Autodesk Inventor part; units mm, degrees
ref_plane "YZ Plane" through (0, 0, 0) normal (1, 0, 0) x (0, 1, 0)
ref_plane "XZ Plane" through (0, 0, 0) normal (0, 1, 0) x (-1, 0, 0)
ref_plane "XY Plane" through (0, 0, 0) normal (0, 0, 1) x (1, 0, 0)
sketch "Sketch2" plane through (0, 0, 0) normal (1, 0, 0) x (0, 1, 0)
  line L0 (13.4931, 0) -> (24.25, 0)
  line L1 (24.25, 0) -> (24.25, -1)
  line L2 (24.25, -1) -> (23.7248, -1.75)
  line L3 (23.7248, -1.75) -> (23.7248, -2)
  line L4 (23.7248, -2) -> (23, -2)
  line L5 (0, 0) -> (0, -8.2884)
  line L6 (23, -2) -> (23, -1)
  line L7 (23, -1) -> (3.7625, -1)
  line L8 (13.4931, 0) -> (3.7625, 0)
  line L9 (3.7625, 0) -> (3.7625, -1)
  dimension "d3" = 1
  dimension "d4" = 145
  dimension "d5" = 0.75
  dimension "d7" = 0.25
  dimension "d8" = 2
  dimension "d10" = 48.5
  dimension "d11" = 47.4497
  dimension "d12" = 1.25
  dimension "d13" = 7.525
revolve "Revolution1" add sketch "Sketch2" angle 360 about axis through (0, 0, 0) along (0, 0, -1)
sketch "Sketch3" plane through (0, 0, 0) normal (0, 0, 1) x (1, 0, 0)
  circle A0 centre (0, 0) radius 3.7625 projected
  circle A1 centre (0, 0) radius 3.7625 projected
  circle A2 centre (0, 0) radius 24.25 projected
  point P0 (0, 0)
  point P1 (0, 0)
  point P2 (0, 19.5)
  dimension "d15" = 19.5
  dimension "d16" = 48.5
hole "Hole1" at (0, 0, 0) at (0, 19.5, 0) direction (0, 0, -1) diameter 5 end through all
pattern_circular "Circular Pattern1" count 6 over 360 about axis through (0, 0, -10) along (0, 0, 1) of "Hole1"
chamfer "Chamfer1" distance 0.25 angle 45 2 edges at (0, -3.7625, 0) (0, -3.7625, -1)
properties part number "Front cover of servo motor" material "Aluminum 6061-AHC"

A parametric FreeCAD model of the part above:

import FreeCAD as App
import Part
import Sketcher

V = App.Vector


def edges_at(feature, points):
    """Names of the edges that pass closest to the given points."""
    edges = feature.Shape.Edges
    near = lambda p: min(range(len(edges)), key=lambda i: edges[i].distToShape(Part.Vertex(*p))[0])
    return sorted({f"Edge{near(p) + 1}" for p in points})


def add_polygon(sketch, points):
    """Adds a closed chain of lines whose ends are joined by coincident constraints."""
    first, n = sketch.GeometryCount, len(points)
    for a, b in zip(points, points[1:] + points[:1]):
        sketch.addGeometry(Part.LineSegment(App.Vector(*a, 0), App.Vector(*b, 0)), False)
    for i in range(n):
        sketch.addConstraint(Sketcher.Constraint("Coincident", first + i, 2, first + (i + 1) % n, 1))

doc = App.newDocument("Part")
params = doc.addObject("Spreadsheet::Sheet", "Params")
for row, (alias, value) in enumerate([
    ("sketch1_height", "1 mm"),
    ("sketch1_height2", "0.25 mm"),
    ("revolution_angle", "360 deg"),
    ("sketch2_diameter", "5 mm"),
    ("hole_diameter", "5 mm"),
    ("chamfer_size", "0.25 mm"),
], start=1):
    params.set(f"A{row}", alias)
    params.set(f"B{row}", "=" + value)
    params.setAlias(f"B{row}", alias)

body = doc.addObject("PartDesign::Body", "Body")

# Sketch on YZ plane
sketch1 = body.newObject("Sketcher::SketchObject", "Sketch")
sketch1.AttachmentSupport = (doc.getObject("YZ_Plane"), [""])
sketch1.MapMode = "FlatFace"
add_polygon(sketch1, [(24.25, 0), (3.7625, 0), (3.7625, -1), (23, -1), (23, -2), (23.7248, -2), (23.7248, -1.75), (24.25, -1)])  # lines 0-7
sketch1.addConstraint(Sketcher.Constraint("Horizontal", 0))
sketch1.addConstraint(Sketcher.Constraint("Vertical", 1))
sketch1.addConstraint(Sketcher.Constraint("Horizontal", 2))
sketch1.addConstraint(Sketcher.Constraint("Vertical", 3))
sketch1.addConstraint(Sketcher.Constraint("Horizontal", 4))
sketch1.addConstraint(Sketcher.Constraint("Vertical", 5))
sketch1.addConstraint(Sketcher.Constraint("Vertical", 7))
sketch1.addConstraint(Sketcher.Constraint("PointOnObject", 0, 2, -1))
sketch1.addConstraint(Sketcher.Constraint("Horizontal", 2, 2, 6, 2))
sketch1.addConstraint(Sketcher.Constraint("Equal", 1, 3))
sketch1.addConstraint(Sketcher.Constraint("DistanceY", 1, 2, 1, 1, 1.0))
sketch1.addConstraint(Sketcher.Constraint("DistanceY", 5, 1, 5, 2, 0.25))
sketch1.addConstraint(Sketcher.Constraint("DistanceX", 2, 2, 6, 2, 1.25))
sketch1.addConstraint(Sketcher.Constraint("DistanceX", -1, 1, 2, 2, 23.0))
sketch1.addConstraint(Sketcher.Constraint("DistanceX", 0, 2, 0, 1, 20.4875))
sketch1.addConstraint(Sketcher.Constraint("DistanceX", 4, 1, 4, 2, 0.7248))
sketch1.setExpression("Constraints[18]", "Params.sketch1_height")
sketch1.setExpression("Constraints[19]", "Params.sketch1_height2")
revolution = body.newObject("PartDesign::Revolution", "Revolution")
revolution.Profile = sketch1
revolution.ReferenceAxis = (sketch1, ["V_Axis"])
revolution.setExpression("Angle", "Params.revolution_angle")

# Sketch on XY plane
sketch2 = body.newObject("Sketcher::SketchObject", "Sketch001")
sketch2.AttachmentSupport = (doc.getObject("XY_Plane"), [""])
sketch2.MapMode = "FlatFace"
sketch2.addGeometry(Part.Circle(V(0, 0, 0), V(0, 0, 1), 2.5), False)
sketch2.addGeometry(Part.Circle(V(0, 19.5, 0), V(0, 0, 1), 2.5), False)
sketch2.addConstraint(Sketcher.Constraint("Coincident", 0, 3, -1, 1))
sketch2.addConstraint(Sketcher.Constraint("Equal", 0, 1))
sketch2.addConstraint(Sketcher.Constraint("PointOnObject", 1, 3, -2))
sketch2.addConstraint(Sketcher.Constraint("Diameter", 0, 5.0))
sketch2.addConstraint(Sketcher.Constraint("DistanceY", -1, 1, 1, 3, 19.5))
sketch2.setExpression("Constraints[3]", "Params.sketch2_diameter")
doc.recompute()
hole = body.newObject("PartDesign::Hole", "Hole")
hole.Profile = sketch2
hole.ThreadType = "None"
hole.setExpression("Diameter", "Params.hole_diameter")
hole.DepthType = "ThroughAll"
doc.recompute()

polarpattern = body.newObject("PartDesign::PolarPattern", "PolarPattern")
polarpattern.Originals = [hole]
polarpattern.Axis = (doc.getObject("Z_Axis"), [""])
polarpattern.Angle = 360
polarpattern.Occurrences = 6
body.Tip = polarpattern
doc.recompute()

chamfer = body.newObject("PartDesign::Chamfer", "Chamfer")
chamfer.Base = (polarpattern, edges_at(polarpattern, [(0, -3.763, 0), (0, -3.763, -1)]))
chamfer.setExpression("Size", "Params.chamfer_size")

doc.recompute()
